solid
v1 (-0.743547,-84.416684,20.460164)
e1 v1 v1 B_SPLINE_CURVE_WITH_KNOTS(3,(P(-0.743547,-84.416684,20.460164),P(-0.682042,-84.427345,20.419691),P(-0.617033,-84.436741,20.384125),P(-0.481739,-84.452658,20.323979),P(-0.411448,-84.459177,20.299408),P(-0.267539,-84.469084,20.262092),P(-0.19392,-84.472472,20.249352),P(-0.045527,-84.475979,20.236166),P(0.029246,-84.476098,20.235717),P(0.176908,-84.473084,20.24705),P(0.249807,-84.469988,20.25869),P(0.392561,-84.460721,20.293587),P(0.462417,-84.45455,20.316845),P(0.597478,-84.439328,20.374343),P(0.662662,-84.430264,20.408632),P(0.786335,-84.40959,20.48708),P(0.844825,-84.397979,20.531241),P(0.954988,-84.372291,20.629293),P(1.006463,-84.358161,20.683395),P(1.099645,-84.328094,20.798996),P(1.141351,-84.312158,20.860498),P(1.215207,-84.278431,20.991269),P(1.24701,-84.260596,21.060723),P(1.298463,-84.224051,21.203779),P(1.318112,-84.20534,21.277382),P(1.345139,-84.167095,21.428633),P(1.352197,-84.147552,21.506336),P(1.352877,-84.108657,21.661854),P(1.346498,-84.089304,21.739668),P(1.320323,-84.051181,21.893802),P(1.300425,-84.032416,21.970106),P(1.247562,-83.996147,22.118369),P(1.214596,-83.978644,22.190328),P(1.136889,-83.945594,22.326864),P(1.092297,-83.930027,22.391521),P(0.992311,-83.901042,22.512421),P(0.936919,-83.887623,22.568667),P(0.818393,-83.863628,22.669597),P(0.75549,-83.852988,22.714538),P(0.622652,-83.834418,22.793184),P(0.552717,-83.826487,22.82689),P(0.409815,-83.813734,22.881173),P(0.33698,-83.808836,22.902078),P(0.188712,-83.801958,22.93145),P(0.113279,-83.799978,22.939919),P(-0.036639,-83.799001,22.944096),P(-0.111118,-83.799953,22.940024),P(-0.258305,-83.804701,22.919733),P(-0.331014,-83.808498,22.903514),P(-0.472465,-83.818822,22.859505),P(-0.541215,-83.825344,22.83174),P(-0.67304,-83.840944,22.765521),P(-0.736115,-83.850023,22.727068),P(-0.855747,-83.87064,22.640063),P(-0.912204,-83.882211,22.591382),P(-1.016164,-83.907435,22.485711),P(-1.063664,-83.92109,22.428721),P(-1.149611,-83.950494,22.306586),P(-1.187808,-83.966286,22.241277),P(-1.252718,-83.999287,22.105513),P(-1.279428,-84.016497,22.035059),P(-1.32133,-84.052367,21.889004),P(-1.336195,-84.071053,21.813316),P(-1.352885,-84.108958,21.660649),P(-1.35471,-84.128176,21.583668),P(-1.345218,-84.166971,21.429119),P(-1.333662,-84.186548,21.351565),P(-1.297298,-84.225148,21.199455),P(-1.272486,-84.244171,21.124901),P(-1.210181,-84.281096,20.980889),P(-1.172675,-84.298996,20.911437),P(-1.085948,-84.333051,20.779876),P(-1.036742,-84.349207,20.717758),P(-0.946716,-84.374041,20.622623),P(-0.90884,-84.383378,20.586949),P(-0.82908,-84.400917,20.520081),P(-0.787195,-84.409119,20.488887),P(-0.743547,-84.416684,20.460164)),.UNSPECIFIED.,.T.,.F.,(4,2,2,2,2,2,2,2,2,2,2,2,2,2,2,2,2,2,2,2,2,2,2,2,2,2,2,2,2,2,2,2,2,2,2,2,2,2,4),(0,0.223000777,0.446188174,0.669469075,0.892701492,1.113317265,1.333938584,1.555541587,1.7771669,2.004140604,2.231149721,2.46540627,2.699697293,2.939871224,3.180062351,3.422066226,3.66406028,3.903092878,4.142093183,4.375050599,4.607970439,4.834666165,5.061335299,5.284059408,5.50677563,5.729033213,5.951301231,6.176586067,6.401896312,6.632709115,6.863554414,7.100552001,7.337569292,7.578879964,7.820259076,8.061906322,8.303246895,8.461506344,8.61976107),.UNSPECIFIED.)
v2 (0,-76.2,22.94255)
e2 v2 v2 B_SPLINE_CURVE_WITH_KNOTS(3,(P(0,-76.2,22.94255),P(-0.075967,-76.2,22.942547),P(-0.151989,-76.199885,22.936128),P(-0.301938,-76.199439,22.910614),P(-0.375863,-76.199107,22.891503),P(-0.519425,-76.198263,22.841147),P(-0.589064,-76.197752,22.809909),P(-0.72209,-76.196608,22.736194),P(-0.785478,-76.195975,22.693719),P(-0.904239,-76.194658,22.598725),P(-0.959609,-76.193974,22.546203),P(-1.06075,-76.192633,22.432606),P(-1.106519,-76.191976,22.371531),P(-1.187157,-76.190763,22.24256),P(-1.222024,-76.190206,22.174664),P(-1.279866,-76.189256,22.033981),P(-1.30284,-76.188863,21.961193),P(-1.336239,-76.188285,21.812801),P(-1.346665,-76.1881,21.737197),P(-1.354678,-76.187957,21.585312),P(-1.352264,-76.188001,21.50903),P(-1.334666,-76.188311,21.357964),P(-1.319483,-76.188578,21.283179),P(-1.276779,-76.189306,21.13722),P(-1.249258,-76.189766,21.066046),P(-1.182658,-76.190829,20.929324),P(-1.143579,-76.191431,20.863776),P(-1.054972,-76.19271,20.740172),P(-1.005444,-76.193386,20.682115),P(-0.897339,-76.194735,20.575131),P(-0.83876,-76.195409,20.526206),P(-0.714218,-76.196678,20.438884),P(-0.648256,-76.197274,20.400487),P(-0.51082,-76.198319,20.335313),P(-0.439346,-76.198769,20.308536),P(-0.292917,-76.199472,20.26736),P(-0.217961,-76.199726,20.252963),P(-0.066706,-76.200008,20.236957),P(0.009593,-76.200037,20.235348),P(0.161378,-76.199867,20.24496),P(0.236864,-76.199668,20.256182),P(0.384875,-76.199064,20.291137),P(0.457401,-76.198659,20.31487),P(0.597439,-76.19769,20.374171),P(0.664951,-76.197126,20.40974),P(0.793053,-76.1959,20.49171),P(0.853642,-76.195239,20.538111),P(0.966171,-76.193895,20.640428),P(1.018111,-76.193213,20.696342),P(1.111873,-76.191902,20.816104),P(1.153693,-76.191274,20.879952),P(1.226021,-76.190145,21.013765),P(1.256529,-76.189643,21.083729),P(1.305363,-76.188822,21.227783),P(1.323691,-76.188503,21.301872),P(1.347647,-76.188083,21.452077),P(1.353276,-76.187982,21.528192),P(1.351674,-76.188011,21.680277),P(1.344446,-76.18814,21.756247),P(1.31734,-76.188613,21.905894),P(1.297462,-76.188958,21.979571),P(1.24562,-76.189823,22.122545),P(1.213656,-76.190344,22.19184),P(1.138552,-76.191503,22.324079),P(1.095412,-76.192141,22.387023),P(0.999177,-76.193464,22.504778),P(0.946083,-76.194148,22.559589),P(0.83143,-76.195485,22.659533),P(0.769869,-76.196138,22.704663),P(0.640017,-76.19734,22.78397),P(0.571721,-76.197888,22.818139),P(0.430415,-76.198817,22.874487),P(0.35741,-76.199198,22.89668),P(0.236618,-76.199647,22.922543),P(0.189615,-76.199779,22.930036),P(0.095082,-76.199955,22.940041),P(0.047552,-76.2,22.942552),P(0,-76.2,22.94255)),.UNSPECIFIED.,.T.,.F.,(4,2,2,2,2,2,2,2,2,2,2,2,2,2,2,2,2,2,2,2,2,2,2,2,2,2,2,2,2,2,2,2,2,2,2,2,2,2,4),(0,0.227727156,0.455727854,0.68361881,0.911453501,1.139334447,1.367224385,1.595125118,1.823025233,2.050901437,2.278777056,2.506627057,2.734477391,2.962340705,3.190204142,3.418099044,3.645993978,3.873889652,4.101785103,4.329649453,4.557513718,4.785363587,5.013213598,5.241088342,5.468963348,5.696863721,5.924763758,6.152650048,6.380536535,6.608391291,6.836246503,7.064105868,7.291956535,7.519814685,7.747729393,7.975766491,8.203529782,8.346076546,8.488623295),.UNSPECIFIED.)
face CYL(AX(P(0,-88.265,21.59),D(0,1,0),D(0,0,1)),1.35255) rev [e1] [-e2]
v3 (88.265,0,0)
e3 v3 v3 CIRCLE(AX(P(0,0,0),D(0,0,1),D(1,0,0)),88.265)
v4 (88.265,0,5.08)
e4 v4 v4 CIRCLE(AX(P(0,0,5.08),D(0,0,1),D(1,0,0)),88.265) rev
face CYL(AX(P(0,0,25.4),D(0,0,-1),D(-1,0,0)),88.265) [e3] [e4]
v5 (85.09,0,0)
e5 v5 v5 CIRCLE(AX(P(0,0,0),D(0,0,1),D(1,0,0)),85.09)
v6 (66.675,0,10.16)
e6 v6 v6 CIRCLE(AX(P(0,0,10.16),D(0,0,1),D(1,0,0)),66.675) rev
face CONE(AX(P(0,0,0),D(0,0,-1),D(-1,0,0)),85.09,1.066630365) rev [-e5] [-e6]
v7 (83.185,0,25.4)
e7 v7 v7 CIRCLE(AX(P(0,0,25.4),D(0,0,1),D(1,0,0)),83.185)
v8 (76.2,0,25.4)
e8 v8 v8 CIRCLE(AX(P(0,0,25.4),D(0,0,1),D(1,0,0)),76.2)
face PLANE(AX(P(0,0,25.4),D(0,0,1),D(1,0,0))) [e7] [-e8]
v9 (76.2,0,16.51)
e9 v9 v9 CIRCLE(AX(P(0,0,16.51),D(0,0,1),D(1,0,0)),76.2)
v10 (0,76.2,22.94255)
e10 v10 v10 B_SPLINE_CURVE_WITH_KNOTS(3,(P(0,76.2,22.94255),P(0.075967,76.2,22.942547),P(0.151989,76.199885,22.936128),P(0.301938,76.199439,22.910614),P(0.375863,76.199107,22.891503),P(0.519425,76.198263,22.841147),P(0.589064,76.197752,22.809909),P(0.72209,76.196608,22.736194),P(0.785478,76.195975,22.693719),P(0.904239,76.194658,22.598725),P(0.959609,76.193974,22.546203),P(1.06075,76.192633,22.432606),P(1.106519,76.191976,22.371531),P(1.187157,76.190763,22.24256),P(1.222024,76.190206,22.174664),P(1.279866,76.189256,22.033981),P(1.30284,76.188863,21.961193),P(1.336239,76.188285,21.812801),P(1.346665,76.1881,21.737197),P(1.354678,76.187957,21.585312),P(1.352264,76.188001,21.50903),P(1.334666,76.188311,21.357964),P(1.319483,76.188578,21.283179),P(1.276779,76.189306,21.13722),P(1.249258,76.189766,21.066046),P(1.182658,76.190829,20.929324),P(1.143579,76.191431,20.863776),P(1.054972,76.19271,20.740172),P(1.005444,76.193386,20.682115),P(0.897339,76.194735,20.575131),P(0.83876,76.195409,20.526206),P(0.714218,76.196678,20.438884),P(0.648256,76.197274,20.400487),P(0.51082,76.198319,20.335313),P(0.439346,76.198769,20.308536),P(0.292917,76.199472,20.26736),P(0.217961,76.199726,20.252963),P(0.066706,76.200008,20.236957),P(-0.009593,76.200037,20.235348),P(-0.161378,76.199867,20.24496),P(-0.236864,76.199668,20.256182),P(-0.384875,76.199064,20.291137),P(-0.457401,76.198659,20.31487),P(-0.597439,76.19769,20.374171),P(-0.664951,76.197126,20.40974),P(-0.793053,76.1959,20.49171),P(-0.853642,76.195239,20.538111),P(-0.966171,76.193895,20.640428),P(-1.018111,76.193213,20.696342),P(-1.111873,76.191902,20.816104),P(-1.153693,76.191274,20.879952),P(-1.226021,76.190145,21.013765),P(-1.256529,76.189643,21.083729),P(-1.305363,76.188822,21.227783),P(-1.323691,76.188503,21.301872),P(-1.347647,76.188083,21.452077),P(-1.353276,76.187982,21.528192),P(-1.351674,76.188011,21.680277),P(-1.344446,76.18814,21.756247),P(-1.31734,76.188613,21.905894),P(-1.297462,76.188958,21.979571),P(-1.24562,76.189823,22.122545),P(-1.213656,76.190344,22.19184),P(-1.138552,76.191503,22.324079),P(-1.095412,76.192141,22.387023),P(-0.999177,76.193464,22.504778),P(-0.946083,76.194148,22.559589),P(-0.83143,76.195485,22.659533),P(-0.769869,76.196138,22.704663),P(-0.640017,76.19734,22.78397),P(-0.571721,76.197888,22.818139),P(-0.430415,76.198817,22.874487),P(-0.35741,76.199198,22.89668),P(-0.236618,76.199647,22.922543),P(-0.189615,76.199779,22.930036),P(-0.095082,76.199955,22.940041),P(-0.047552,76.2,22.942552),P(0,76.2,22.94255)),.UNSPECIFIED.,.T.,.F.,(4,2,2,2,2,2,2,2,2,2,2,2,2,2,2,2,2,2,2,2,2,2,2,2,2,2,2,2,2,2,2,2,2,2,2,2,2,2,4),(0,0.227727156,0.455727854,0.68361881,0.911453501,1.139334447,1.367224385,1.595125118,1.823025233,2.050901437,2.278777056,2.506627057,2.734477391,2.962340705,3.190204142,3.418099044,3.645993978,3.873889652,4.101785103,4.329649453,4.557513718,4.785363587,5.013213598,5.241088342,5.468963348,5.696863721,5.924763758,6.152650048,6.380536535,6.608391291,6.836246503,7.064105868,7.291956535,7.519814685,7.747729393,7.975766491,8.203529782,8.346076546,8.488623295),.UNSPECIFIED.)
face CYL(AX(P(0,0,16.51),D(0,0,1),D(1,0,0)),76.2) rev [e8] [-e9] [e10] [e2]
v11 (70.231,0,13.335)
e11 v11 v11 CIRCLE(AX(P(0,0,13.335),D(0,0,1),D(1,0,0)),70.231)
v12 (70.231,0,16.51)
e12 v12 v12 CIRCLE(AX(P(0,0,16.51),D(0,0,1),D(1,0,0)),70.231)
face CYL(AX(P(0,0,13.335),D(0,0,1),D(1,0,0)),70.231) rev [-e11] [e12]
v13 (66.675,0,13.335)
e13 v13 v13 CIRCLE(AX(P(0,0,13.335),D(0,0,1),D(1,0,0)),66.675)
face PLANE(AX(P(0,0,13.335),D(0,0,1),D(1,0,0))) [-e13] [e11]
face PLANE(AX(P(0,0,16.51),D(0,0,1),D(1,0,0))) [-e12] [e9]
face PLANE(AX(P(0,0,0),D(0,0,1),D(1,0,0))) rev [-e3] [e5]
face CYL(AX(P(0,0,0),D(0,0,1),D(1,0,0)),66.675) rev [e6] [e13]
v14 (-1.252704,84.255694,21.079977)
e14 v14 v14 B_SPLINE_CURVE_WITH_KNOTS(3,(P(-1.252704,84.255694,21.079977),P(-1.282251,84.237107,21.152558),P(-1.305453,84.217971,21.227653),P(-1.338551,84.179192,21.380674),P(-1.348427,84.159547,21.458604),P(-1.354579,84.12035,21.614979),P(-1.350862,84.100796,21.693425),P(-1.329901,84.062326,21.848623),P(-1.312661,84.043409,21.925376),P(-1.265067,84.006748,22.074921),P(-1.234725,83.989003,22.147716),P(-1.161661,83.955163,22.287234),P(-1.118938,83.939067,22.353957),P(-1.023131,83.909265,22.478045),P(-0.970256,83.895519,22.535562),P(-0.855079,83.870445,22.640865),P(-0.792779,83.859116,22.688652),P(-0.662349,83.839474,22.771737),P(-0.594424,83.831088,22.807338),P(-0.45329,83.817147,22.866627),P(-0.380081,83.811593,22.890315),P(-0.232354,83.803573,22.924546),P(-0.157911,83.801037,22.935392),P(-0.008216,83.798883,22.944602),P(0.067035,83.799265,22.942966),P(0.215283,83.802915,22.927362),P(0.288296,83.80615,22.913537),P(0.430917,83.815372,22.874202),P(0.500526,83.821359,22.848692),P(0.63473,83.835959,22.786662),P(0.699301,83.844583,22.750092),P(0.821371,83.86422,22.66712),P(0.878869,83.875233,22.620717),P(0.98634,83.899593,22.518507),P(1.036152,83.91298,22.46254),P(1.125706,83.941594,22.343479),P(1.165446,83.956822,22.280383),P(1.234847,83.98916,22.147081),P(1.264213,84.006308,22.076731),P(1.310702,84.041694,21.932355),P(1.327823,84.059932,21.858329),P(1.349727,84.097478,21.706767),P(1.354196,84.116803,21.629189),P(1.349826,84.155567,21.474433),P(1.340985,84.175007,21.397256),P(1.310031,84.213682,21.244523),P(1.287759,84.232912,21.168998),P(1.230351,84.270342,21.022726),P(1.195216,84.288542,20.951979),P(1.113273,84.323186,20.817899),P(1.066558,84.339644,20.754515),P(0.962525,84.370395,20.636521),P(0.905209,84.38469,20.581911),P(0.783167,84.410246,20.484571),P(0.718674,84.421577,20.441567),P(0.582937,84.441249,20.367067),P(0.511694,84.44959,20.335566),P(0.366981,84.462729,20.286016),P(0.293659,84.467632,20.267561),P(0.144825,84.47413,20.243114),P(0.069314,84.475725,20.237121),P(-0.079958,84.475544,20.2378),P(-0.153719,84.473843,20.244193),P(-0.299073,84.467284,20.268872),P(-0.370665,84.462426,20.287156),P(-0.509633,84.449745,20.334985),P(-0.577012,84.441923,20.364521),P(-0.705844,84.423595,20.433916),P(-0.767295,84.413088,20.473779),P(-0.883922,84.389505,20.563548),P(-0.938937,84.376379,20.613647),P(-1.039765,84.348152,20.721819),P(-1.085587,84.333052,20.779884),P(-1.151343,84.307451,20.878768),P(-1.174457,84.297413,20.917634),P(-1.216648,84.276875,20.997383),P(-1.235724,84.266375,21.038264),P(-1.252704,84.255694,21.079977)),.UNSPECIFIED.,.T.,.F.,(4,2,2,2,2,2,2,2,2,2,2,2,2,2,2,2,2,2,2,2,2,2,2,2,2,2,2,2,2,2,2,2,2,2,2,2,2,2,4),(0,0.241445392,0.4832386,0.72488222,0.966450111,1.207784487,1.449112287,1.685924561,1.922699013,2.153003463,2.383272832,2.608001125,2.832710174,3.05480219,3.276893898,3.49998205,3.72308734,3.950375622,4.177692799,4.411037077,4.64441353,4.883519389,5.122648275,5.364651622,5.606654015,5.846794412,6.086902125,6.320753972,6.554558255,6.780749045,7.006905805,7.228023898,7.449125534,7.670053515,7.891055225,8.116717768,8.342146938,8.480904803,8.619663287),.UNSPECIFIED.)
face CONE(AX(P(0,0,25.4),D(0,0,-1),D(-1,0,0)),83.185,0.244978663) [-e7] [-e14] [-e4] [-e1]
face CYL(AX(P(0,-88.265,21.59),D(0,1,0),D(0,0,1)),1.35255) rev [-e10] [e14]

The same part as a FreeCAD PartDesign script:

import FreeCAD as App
import Part
import Sketcher

V = App.Vector
Q = App.Units.Quantity


def edges_at(feature, points):
    """Names of the edges that pass closest to the given points."""
    edges = feature.Shape.Edges
    near = lambda p: min(range(len(edges)), key=lambda i: edges[i].distToShape(Part.Vertex(*p))[0])
    return sorted({f"Edge{near(p) + 1}" for p in points})

doc = App.newDocument("Part")
params = doc.addObject("Spreadsheet::Sheet", "Params")
for row, (alias, value) in enumerate([
    ("sketch1_diameter", "6.95 in"),
    ("pad1_length", "1 in"),
    ("sketch2_diameter", "6 in"),
    ("pocket1_length", "0.35 in"),
    ("sketch3_diameter", "5.53 in"),
    ("pocket2_length", "0.125 in"),
    ("sketch4_diameter", "5.25 in"),
    ("chamfer_size", "0.4 in"),
    ("chamfer_size2", "0.725 in"),
    ("chamfer2_size", "0.8 in"),
    ("chamfer2_size2", "0.2 in"),
], start=1):
    params.set(f"A{row}", alias)
    params.set(f"B{row}", "=" + value)
    params.setAlias(f"B{row}", alias)

body = doc.addObject("PartDesign::Body", "Body")

# Sketch on XY plane
sketch1 = body.newObject("Sketcher::SketchObject", "Sketch")
sketch1.AttachmentSupport = (doc.getObject("XY_Plane"), [""])
sketch1.MapMode = "FlatFace"
sketch1.addGeometry(Part.Circle(V(0, 0, 0), V(0, 0, 1), 88), False)
sketch1.addConstraint([
    Sketcher.Constraint("Coincident", 0, 3, -1, 1),
    Sketcher.Constraint("Diameter", 0, Q("6.95 in")),
])
sketch1.setExpression("Constraints[1]", "Params.sketch1_diameter")
pad1 = body.newObject("PartDesign::Pad", "Pad")
pad1.Profile = sketch1
pad1.setExpression("Length", "Params.pad1_length")

# Sketch on XY plane
sketch2 = body.newObject("Sketcher::SketchObject", "Sketch001")
sketch2.AttachmentSupport = (doc.getObject("XY_Plane"), [""])
sketch2.MapMode = "FlatFace"
sketch2.AttachmentOffset = App.Placement(V(0, 0, 1 * 25.4), App.Rotation())
sketch2.addGeometry(Part.Circle(V(0, 0, 0), V(0, 0, 1), 76), False)
sketch2.addConstraint([
    Sketcher.Constraint("Coincident", 0, 3, -1, 1),
    Sketcher.Constraint("Diameter", 0, Q("6 in")),
])
sketch2.setExpression("Constraints[1]", "Params.sketch2_diameter")
pocket1 = body.newObject("PartDesign::Pocket", "Pocket")
pocket1.Profile = sketch2
pocket1.setExpression("Length", "Params.pocket1_length")

# Sketch on XY plane
sketch3 = body.newObject("Sketcher::SketchObject", "Sketch002")
sketch3.AttachmentSupport = (doc.getObject("XY_Plane"), [""])
sketch3.MapMode = "FlatFace"
sketch3.AttachmentOffset = App.Placement(V(0, 0, 0.65 * 25.4), App.Rotation())
sketch3.addGeometry(Part.Circle(V(0, 0, 0), V(0, 0, 1), 70), False)
sketch3.addConstraint([
    Sketcher.Constraint("Coincident", 0, 3, -1, 1),
    Sketcher.Constraint("Diameter", 0, Q("5.53 in")),
])
sketch3.setExpression("Constraints[1]", "Params.sketch3_diameter")
pocket2 = body.newObject("PartDesign::Pocket", "Pocket001")
pocket2.Profile = sketch3
pocket2.setExpression("Length", "Params.pocket2_length")

# Sketch on XY plane
sketch4 = body.newObject("Sketcher::SketchObject", "Sketch003")
sketch4.AttachmentSupport = (doc.getObject("XY_Plane"), [""])
sketch4.MapMode = "FlatFace"
sketch4.AttachmentOffset = App.Placement(V(0, 0, 0.525 * 25.4), App.Rotation())
sketch4.addGeometry(Part.Circle(V(0, 0, 0), V(0, 0, 1), 67), False)
sketch4.addConstraint([
    Sketcher.Constraint("Coincident", 0, 3, -1, 1),
    Sketcher.Constraint("Diameter", 0, Q("5.25 in")),
])
sketch4.setExpression("Constraints[1]", "Params.sketch4_diameter")
pocket3 = body.newObject("PartDesign::Pocket", "Pocket002")
pocket3.Profile = sketch4
pocket3.Type = "ThroughAll"
doc.recompute()

chamfer = body.newObject("PartDesign::Chamfer", "Chamfer")
chamfer.Base = (pocket3, edges_at(pocket3, [(-66.675, 0, 0)]))
chamfer.ChamferType = "Two distances"
chamfer.setExpression("Size", "Params.chamfer_size")
chamfer.setExpression("Size2", "Params.chamfer_size2")
chamfer.FlipDirection = True
doc.recompute()

chamfer2 = body.newObject("PartDesign::Chamfer", "Chamfer001")
chamfer2.Base = (chamfer, edges_at(chamfer, [(-88.265, 0, 25.4)]))
chamfer2.ChamferType = "Two distances"
chamfer2.setExpression("Size", "Params.chamfer2_size")
chamfer2.setExpression("Size2", "Params.chamfer2_size2")

# Sketch on XZ plane
sketch5 = body.newObject("Sketcher::SketchObject", "Sketch004")
sketch5.AttachmentSupport = (doc.getObject("XZ_Plane"), [""])
sketch5.MapMode = "FlatFace"
sketch5.addGeometry(Part.Circle(V(0, 21.6, 0), V(0, 0, 1), 1.4), False)
sketch5.addConstraint([
    Sketcher.Constraint("PointOnObject", 0, 3, -2),
    Sketcher.Constraint("Diameter", 0, Q("0.1065 in")),
    Sketcher.Constraint("DistanceY", -1, 1, 0, 3, Q("0.85 in")),
])
pocket4 = body.newObject("PartDesign::Pocket", "Pocket003")
pocket4.Profile = sketch5
pocket4.Type = "ThroughAll"
pocket4.Midplane = True

doc.recompute()
